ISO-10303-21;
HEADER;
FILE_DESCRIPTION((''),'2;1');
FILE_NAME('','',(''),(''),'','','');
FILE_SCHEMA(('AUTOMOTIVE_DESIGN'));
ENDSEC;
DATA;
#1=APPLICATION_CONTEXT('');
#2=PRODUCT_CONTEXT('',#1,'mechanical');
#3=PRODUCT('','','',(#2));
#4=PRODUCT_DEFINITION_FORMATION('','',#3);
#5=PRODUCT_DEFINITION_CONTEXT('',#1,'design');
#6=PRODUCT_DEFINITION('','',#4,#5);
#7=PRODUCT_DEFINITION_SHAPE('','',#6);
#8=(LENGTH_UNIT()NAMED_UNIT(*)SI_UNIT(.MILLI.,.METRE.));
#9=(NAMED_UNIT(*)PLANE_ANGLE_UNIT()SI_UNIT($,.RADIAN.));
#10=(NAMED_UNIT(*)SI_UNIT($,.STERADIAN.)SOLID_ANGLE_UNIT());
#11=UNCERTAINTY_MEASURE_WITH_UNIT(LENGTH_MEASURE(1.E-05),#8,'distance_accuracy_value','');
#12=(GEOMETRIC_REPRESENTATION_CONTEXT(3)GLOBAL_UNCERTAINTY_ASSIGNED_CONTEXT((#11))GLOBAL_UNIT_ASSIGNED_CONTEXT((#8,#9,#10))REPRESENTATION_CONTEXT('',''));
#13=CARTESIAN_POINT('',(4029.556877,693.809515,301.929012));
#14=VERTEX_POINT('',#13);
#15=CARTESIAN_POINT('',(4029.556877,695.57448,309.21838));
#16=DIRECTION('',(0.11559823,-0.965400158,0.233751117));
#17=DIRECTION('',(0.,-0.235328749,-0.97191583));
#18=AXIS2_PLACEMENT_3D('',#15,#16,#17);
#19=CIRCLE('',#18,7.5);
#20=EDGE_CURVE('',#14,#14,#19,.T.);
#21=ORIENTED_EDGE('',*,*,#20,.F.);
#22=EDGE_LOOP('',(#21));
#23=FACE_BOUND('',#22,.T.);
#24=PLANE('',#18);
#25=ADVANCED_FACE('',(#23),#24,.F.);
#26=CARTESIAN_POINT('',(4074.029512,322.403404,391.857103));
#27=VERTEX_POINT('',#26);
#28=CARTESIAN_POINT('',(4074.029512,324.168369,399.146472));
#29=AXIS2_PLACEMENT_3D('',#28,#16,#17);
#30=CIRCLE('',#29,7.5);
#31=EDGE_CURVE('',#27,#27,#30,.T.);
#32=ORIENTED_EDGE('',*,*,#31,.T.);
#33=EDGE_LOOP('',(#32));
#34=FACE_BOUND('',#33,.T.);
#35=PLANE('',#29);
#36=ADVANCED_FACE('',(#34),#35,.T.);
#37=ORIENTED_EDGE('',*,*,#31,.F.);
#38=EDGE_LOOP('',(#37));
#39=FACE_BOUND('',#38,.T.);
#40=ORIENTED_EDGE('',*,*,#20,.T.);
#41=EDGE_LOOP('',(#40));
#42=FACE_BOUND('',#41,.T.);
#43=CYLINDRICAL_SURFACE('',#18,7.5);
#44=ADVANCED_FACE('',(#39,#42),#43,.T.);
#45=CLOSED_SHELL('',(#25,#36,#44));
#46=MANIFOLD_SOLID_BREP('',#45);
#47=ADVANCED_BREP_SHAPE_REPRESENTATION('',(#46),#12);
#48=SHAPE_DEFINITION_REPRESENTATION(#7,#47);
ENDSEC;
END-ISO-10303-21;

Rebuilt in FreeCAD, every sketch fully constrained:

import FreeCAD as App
import Part
import Sketcher
Q = App.Units.Quantity

doc = App.newDocument("Part")
body = doc.addObject("PartDesign::Body", "Body")

sketch1 = doc.addObject("Sketcher::SketchObject", "Sketch")
body.addObject(sketch1)
sketch1.Placement = App.Placement(App.Vector(4029.556877, 695.57448, 309.21838), App.Rotation(App.Vector(0, -0.235328749, -0.97191583), App.Vector(0.993296054, 0.11235175, -0.027203587), App.Vector(0.11559823, -0.965400158, 0.233751117), "ZXY"))
sketch1.addGeometry(Part.Circle(App.Vector(0, 0, 0), App.Vector(0, 0, 1), 8), False)
sketch1.addConstraint([
    Sketcher.Constraint("Coincident", 0, 3, -1, 1),
    Sketcher.Constraint("Diameter", 0, Q("15 mm")),
])

sketch2 = doc.addObject("Sketcher::SketchObject", "Sketch001")
body.addObject(sketch2)
sketch2.Placement = App.Placement(App.Vector(0, 109.244997, 451.185596), App.Rotation(App.Vector(0, -0.97191583, 0.235328749), App.Vector(1.000000001, 0, 0), App.Vector(0, 0.235328749, 0.97191583), "ZXY"))
sketch2.addGeometry(Part.LineSegment(App.Vector(-603, 4030, 0), App.Vector(-221, 4074, 0)), False)
sketch2.addConstraint([
    Sketcher.Constraint("Distance", 0, Q("384.717268 mm")),
    Sketcher.Constraint("DistanceX", 0, 2, -1, 1, Q("221.13373 mm")),
    Sketcher.Constraint("DistanceX", 0, 1, -1, 1, Q("603.271874 mm")),
    Sketcher.Constraint("DistanceY", -1, 1, 0, 1, Q("4029.556882 mm")),
])
doc.recompute()

additivepipe = doc.addObject("PartDesign::AdditivePipe", "AdditivePipe")
body.addObject(additivepipe)
additivepipe.Profile = sketch1
additivepipe.Spine = (sketch2, ["Edge1"])

doc.recompute()
